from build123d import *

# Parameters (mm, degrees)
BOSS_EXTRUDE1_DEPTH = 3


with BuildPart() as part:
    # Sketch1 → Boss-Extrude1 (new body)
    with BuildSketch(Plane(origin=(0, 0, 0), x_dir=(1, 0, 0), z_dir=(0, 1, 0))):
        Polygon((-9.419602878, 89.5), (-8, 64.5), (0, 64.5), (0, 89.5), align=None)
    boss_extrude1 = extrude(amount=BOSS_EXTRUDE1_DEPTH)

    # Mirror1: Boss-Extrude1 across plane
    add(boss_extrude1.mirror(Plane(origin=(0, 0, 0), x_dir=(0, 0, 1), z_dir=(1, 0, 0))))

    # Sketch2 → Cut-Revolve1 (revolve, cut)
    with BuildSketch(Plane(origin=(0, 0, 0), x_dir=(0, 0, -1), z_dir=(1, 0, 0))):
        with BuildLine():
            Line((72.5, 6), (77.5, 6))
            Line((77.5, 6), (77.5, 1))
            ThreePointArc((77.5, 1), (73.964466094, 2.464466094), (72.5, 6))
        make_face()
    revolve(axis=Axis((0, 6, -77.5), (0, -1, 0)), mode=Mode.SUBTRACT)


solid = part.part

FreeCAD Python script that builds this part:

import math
import FreeCAD as App
import Part
import Sketcher
from FreeCAD import Vector
Q = App.Units.Quantity

doc = App.newDocument("Part")
params = doc.addObject("Spreadsheet::Sheet", "Params")
for row, (alias, value) in enumerate([
    ("sketch1_width", "8 mm"),
    ("sketch1_height", "25 mm"),
    ("pad1_length", "3 mm"),
    ("sketch2_radius", "5 mm"),
    ("groove_angle", "360 deg"),
], start=1):
    params.set(f"A{row}", alias)
    params.set(f"B{row}", "=" + value)
    params.setAlias(f"B{row}", alias)

body = doc.addObject("PartDesign::Body", "Body")

# Sketch on XZ plane
sketch1 = body.newObject("Sketcher::SketchObject", "Sketch")
sketch1.AttachmentSupport = (doc.getObject("XZ_Plane"), [""])
sketch1.MapMode = "FlatFace"
sketch1.addGeometry(Part.LineSegment(Vector(-9, -90, 0), Vector(-8, -64, 0)), False)
sketch1.addGeometry(Part.LineSegment(Vector(-8, -64, 0), Vector(0, -64, 0)), False)
sketch1.addGeometry(Part.LineSegment(Vector(0, -64, 0), Vector(0, -90, 0)), False)
sketch1.addGeometry(Part.LineSegment(Vector(0, -90, 0), Vector(-9, -90, 0)), False)
sketch1.addConstraint(Sketcher.Constraint("Coincident", 0, 2, 1, 1))
sketch1.addConstraint(Sketcher.Constraint("Coincident", 1, 2, 2, 1))
sketch1.addConstraint(Sketcher.Constraint("Coincident", 2, 2, 3, 1))
sketch1.addConstraint(Sketcher.Constraint("Coincident", 3, 2, 0, 1))
sketch1.addConstraint(Sketcher.Constraint("Horizontal", 1))
sketch1.addConstraint(Sketcher.Constraint("Vertical", 2))
sketch1.addConstraint(Sketcher.Constraint("Horizontal", 3))
sketch1.addConstraint(Sketcher.Constraint("PointOnObject", 1, 2, -2))
sketch1.addConstraint(Sketcher.Constraint("DistanceX", 1, 1, 1, 2, Q("8 mm")))
sketch1.addConstraint(Sketcher.Constraint("DistanceY", 2, 2, 2, 1, Q("25 mm")))
sketch1.addConstraint(Sketcher.Constraint("DistanceY", 0, 2, -1, 1, Q("64.5 mm")))
sketch1.addConstraint(Sketcher.Constraint("Angle", 0, Q("86.75 deg")))
sketch1.setExpression("Constraints[8]", "Params.sketch1_width")
sketch1.setExpression("Constraints[9]", "Params.sketch1_height")
pad1 = body.newObject("PartDesign::Pad", "Pad")
pad1.Profile = sketch1
pad1.setExpression("Length", "Params.pad1_length")
pad1.Reversed = True
doc.recompute()

mirrored = body.newObject("PartDesign::Mirrored", "Mirrored")
mirrored.Originals = [pad1]
mirrored.MirrorPlane = (doc.getObject("YZ_Plane"), [""])
body.Tip = mirrored

# Sketch on YZ plane
sketch2 = body.newObject("Sketcher::SketchObject", "Sketch001")
sketch2.AttachmentSupport = (doc.getObject("YZ_Plane"), [""])
sketch2.MapMode = "FlatFace"
sketch2.addGeometry(Part.LineSegment(Vector(6, -78, 0), Vector(6, -72, 0)), False)
sketch2.addGeometry(Part.ArcOfCircle(Part.Circle(Vector(6, -78, 0), Vector(0, 0, 1), 5), math.radians(90), math.radians(180)), False)
sketch2.addGeometry(Part.LineSegment(Vector(1, -78, 0), Vector(6, -78, 0)), False)
sketch2.addGeometry(Part.LineSegment(Vector(6, -78, 0), Vector(1, -78, 0)), True)  # axis
sketch2.addConstraint(Sketcher.Constraint("Coincident", 0, 2, 1, 1))
sketch2.addConstraint(Sketcher.Constraint("Coincident", 1, 2, 2, 1))
sketch2.addConstraint(Sketcher.Constraint("Coincident", 2, 2, 0, 1))
sketch2.addConstraint(Sketcher.Constraint("Vertical", 0))
sketch2.addConstraint(Sketcher.Constraint("Horizontal", 2))
sketch2.addConstraint(Sketcher.Constraint("Horizontal", 3))
sketch2.addConstraint(Sketcher.Constraint("Coincident", 2, 2, 1, 3))
sketch2.addConstraint(Sketcher.Constraint("Coincident", 3, 1, 1, 3))
sketch2.addConstraint(Sketcher.Constraint("Equal", 2, 3))
sketch2.addConstraint(Sketcher.Constraint("Radius", 1, Q("5 mm")))
sketch2.addConstraint(Sketcher.Constraint("DistanceX", -1, 1, 1, 3, Q("6 mm")))
sketch2.addConstraint(Sketcher.Constraint("DistanceY", 1, 3, -1, 1, Q("77.5 mm")))
sketch2.setExpression("Constraints[9]", "Params.sketch2_radius")
groove = body.newObject("PartDesign::Groove", "Groove")
groove.Profile = sketch2
groove.ReferenceAxis = (sketch2, ["Axis0"])
groove.setExpression("Angle", "Params.groove_angle")

doc.recompute()
